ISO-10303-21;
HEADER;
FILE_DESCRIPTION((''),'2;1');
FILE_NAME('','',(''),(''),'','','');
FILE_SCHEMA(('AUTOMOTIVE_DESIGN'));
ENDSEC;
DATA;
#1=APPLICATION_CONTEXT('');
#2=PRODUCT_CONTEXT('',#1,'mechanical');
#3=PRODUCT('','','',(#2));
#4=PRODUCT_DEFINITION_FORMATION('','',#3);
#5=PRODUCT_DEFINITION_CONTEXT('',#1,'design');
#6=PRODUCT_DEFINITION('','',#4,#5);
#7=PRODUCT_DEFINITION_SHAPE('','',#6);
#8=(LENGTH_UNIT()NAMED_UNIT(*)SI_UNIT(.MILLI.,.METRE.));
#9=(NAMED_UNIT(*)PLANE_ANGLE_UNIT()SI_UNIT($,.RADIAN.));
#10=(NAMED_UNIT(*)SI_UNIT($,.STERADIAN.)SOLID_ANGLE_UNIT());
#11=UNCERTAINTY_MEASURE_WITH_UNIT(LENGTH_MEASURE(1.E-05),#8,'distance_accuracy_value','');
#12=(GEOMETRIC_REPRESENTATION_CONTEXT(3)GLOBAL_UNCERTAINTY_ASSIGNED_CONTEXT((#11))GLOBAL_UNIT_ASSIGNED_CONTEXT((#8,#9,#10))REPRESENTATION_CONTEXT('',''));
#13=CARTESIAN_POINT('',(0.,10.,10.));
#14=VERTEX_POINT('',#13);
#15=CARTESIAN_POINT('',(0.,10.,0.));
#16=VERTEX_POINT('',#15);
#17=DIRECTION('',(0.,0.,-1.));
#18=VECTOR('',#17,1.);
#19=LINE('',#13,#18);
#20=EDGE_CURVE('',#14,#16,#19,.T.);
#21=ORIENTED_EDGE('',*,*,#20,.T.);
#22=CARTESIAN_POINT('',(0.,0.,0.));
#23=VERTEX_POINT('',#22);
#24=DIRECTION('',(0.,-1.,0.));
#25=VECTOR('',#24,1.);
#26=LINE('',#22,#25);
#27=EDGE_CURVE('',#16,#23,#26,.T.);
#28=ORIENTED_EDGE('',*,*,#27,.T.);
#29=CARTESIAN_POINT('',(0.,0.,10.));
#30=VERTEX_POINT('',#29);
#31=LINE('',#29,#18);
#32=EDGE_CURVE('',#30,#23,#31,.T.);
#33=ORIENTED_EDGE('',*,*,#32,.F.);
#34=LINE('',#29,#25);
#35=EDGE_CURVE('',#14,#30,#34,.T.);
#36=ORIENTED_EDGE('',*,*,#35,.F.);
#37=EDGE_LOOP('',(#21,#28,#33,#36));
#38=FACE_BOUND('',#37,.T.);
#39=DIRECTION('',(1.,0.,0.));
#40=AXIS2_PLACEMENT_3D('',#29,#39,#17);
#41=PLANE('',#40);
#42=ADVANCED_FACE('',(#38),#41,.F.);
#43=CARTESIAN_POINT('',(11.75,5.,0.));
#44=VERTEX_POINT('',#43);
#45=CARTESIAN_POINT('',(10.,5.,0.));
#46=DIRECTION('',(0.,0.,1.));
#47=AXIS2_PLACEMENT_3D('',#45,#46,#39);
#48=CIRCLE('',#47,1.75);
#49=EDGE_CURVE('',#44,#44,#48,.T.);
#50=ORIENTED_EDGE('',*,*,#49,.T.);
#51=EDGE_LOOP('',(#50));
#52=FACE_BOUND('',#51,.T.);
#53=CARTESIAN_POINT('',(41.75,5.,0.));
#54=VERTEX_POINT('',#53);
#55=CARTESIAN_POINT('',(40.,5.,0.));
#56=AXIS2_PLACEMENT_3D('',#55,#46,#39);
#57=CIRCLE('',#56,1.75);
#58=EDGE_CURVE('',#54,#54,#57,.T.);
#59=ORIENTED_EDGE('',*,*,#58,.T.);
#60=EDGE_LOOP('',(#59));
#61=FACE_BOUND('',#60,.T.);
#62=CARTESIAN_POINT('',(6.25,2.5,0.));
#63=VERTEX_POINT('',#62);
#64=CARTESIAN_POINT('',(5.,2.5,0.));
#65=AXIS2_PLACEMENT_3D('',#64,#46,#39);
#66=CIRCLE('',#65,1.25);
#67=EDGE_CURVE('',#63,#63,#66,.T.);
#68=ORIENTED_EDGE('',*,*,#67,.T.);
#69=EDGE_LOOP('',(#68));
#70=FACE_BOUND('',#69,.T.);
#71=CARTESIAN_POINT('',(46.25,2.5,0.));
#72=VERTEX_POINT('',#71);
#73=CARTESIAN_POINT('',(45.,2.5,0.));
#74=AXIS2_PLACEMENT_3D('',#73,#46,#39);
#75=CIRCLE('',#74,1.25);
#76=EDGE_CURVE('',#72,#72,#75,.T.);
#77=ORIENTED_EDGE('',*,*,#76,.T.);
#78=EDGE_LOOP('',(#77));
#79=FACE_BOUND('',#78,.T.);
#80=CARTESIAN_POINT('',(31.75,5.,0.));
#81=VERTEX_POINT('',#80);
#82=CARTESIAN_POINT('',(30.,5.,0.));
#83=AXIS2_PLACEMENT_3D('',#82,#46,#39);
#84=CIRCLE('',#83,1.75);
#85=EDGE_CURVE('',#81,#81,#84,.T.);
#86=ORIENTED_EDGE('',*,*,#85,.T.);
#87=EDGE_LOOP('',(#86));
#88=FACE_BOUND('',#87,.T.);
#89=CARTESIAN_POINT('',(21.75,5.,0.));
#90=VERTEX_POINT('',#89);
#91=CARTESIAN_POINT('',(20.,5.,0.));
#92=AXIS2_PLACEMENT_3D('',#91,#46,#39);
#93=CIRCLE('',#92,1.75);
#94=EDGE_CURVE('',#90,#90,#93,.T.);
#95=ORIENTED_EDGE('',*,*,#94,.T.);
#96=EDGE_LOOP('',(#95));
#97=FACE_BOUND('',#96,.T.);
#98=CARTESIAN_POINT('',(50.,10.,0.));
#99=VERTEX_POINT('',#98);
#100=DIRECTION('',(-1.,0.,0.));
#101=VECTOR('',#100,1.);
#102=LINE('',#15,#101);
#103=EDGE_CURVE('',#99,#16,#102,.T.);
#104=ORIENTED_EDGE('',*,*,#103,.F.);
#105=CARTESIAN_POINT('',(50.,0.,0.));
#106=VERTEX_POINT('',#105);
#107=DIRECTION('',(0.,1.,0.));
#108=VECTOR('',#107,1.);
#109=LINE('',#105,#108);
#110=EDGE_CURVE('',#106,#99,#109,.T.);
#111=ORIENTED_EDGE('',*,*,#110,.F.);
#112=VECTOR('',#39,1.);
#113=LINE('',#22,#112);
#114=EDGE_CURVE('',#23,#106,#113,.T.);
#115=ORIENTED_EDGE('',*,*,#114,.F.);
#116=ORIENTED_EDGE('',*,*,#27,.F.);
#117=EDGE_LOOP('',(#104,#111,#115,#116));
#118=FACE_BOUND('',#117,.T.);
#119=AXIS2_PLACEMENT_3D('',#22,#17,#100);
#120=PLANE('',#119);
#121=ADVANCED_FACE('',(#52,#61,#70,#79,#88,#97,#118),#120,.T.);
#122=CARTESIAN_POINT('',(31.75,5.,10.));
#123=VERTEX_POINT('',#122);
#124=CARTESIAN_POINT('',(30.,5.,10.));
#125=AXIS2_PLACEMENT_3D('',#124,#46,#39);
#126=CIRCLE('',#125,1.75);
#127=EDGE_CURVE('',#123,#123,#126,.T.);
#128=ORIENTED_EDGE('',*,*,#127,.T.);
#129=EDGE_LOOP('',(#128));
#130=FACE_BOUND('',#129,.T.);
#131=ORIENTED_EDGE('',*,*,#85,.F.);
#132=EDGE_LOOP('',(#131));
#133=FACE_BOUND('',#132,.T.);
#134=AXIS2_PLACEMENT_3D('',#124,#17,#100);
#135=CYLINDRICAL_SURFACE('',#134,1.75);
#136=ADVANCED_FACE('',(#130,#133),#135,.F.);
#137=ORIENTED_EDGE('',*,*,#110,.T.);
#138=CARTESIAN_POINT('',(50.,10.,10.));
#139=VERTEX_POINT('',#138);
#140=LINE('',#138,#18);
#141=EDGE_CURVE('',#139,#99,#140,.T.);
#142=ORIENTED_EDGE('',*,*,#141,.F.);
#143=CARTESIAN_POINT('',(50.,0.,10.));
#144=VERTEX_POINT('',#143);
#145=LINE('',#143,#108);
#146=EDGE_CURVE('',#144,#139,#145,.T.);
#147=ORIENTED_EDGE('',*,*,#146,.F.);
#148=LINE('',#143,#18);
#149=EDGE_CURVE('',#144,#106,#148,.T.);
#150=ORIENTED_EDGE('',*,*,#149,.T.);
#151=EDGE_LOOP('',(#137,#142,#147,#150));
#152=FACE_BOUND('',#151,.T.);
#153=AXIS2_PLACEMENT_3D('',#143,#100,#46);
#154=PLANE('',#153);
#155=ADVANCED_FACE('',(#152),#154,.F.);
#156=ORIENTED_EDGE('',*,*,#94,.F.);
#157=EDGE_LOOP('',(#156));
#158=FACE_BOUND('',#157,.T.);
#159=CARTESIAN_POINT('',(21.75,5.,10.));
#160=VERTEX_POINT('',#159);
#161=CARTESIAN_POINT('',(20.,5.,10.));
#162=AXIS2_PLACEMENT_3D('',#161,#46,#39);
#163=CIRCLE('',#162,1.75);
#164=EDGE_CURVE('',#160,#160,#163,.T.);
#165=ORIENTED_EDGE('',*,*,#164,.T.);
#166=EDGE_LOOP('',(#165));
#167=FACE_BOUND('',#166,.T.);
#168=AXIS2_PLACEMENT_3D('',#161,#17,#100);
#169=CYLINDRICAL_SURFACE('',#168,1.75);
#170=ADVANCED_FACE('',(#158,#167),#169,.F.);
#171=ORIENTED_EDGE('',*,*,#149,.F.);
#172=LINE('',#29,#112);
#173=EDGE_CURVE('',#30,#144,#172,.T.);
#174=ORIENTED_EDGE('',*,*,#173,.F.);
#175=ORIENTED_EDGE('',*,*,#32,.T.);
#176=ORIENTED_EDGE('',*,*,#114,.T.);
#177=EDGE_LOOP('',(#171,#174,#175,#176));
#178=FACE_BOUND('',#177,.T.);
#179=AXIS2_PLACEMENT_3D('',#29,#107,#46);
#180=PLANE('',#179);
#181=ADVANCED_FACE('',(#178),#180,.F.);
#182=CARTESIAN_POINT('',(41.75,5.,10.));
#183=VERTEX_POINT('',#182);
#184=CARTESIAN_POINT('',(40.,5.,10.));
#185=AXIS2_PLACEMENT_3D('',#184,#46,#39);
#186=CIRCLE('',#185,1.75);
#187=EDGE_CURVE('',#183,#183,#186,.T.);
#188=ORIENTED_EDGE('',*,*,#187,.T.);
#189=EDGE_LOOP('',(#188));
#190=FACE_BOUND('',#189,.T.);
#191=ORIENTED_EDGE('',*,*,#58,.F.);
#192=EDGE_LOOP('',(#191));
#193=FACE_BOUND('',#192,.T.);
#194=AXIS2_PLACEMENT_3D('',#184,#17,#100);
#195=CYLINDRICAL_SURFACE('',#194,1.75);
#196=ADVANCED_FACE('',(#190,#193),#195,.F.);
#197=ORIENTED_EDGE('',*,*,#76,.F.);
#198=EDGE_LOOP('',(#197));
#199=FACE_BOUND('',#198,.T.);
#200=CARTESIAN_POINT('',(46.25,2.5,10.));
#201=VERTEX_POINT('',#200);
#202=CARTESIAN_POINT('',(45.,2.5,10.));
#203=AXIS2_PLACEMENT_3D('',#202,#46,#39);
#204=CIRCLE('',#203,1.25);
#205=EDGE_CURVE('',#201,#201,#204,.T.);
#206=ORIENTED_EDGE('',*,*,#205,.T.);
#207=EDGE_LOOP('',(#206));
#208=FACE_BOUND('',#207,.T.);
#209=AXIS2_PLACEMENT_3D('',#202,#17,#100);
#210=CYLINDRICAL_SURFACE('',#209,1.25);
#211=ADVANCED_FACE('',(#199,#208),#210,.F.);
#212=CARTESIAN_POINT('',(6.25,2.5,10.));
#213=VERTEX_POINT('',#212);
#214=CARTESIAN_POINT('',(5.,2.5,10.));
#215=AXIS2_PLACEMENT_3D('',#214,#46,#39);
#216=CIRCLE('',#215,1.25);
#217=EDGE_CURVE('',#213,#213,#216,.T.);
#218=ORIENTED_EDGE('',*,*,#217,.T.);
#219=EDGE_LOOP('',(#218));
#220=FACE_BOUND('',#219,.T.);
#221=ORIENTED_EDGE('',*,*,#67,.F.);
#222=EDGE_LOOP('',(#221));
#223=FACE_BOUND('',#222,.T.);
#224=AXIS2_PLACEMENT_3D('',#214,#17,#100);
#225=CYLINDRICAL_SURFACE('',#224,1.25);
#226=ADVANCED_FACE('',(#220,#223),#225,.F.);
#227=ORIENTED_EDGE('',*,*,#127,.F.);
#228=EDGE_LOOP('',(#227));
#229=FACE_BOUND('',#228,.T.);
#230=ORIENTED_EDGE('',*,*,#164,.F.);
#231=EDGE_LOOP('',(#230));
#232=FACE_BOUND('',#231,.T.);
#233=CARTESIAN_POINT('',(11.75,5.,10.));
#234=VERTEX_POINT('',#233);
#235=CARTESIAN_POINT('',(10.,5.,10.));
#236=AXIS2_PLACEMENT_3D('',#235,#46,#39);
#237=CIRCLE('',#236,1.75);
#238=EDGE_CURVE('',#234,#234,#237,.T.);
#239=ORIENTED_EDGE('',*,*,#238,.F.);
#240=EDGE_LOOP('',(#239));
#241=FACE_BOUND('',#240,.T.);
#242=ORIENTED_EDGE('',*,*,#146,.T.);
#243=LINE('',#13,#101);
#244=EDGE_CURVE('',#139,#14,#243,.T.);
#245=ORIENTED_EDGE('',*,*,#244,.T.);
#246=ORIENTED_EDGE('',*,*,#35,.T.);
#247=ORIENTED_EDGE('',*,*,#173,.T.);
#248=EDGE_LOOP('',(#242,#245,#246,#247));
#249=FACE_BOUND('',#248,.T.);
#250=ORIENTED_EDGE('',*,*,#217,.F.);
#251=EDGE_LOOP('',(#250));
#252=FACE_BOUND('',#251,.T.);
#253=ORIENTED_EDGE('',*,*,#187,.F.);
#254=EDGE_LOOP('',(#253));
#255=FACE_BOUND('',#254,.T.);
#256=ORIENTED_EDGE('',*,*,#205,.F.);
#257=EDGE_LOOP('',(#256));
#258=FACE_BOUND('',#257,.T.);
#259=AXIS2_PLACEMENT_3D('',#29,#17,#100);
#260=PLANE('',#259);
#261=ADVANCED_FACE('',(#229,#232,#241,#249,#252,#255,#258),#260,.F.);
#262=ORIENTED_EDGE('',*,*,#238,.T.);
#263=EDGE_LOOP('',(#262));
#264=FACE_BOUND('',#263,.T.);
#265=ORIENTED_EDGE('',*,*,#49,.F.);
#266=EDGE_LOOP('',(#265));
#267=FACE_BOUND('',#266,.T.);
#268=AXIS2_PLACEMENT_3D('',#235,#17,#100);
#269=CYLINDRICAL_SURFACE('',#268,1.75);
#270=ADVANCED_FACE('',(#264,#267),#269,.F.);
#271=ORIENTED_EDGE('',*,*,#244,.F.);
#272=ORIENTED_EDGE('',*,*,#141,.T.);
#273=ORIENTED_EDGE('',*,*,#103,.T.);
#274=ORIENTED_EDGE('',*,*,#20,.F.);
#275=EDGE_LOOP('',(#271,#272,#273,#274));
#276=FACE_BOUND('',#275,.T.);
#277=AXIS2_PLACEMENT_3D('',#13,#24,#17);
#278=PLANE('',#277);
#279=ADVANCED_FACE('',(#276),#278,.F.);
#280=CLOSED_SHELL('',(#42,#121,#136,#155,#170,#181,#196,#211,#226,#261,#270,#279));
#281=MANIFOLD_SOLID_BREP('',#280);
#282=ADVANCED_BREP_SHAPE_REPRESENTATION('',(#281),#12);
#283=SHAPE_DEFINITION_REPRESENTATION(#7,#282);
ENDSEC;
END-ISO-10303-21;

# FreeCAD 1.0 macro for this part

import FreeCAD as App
import Part
import Sketcher
Q = App.Units.Quantity


def add_polygon(sketch, points):
    """Adds a closed chain of lines whose ends are joined by coincident constraints."""
    first, n = sketch.GeometryCount, len(points)
    for a, b in zip(points, points[1:] + points[:1]):
        sketch.addGeometry(Part.LineSegment(App.Vector(*a, 0), App.Vector(*b, 0)), False)
    for i in range(n):
        sketch.addConstraint(Sketcher.Constraint("Coincident", first + i, 2, first + (i + 1) % n, 1))

doc = App.newDocument("Part")
body = doc.addObject("PartDesign::Body", "Body")

sketch1 = doc.addObject("Sketcher::SketchObject", "Sketch")
body.addObject(sketch1)
sketch1.AttachmentSupport = (doc.XY_Plane, [""])
sketch1.MapMode = "FlatFace"
add_polygon(sketch1, [(0, 10), (0, 0), (50, 0), (50, 10)])
sketch1.addGeometry(Part.Circle(App.Vector(5, 2.5, 0), App.Vector(0, 0, 1), 1.2), False)
sketch1.addGeometry(Part.Circle(App.Vector(45, 2.5, 0), App.Vector(0, 0, 1), 1.2), False)
sketch1.addGeometry(Part.Circle(App.Vector(10, 5, 0), App.Vector(0, 0, 1), 1.8), False)
sketch1.addGeometry(Part.Circle(App.Vector(20, 5, 0), App.Vector(0, 0, 1), 1.8), False)
sketch1.addGeometry(Part.Circle(App.Vector(30, 5, 0), App.Vector(0, 0, 1), 1.8), False)
sketch1.addGeometry(Part.Circle(App.Vector(40, 5, 0), App.Vector(0, 0, 1), 1.8), False)
sketch1.addConstraint([
    Sketcher.Constraint("Vertical", 0),
    Sketcher.Constraint("Horizontal", 1),
    Sketcher.Constraint("Vertical", 2),
    Sketcher.Constraint("Horizontal", 3),
    Sketcher.Constraint("Coincident", 0, 2, -1, 1),
    Sketcher.Constraint("Equal", 4, 5),
    Sketcher.Constraint("Equal", 6, 7),
    Sketcher.Constraint("Equal", 7, 8),
    Sketcher.Constraint("Equal", 8, 9),
    Sketcher.Constraint("Horizontal", 4, 3, 5, 3),
    Sketcher.Constraint("Horizontal", 6, 3, 7, 3),
    Sketcher.Constraint("Horizontal", 7, 3, 8, 3),
    Sketcher.Constraint("Horizontal", 8, 3, 9, 3),
    Sketcher.Constraint("Diameter", 4, Q("2.5 mm")),
    Sketcher.Constraint("Diameter", 6, Q("3.5 mm")),
    Sketcher.Constraint("DistanceX", 1, 1, 1, 2, Q("50 mm")),
    Sketcher.Constraint("DistanceY", 0, 2, 0, 1, Q("10 mm")),
    Sketcher.Constraint("DistanceX", -1, 1, 4, 3, Q("5 mm")),
    Sketcher.Constraint("DistanceX", -1, 1, 5, 3, Q("45 mm")),
    Sketcher.Constraint("DistanceX", -1, 1, 6, 3, Q("10 mm")),
    Sketcher.Constraint("DistanceY", -1, 1, 6, 3, Q("5 mm")),
    Sketcher.Constraint("DistanceX", -1, 1, 7, 3, Q("20 mm")),
    Sketcher.Constraint("DistanceX", -1, 1, 8, 3, Q("30 mm")),
    Sketcher.Constraint("DistanceX", -1, 1, 9, 3, Q("40 mm")),
    Sketcher.Constraint("DistanceY", -1, 1, 4, 3, Q("2.5 mm")),
])
pad1 = doc.addObject("PartDesign::Pad", "Pad")
body.addObject(pad1)
pad1.Profile = sketch1
pad1.Length = 10

doc.recompute()
